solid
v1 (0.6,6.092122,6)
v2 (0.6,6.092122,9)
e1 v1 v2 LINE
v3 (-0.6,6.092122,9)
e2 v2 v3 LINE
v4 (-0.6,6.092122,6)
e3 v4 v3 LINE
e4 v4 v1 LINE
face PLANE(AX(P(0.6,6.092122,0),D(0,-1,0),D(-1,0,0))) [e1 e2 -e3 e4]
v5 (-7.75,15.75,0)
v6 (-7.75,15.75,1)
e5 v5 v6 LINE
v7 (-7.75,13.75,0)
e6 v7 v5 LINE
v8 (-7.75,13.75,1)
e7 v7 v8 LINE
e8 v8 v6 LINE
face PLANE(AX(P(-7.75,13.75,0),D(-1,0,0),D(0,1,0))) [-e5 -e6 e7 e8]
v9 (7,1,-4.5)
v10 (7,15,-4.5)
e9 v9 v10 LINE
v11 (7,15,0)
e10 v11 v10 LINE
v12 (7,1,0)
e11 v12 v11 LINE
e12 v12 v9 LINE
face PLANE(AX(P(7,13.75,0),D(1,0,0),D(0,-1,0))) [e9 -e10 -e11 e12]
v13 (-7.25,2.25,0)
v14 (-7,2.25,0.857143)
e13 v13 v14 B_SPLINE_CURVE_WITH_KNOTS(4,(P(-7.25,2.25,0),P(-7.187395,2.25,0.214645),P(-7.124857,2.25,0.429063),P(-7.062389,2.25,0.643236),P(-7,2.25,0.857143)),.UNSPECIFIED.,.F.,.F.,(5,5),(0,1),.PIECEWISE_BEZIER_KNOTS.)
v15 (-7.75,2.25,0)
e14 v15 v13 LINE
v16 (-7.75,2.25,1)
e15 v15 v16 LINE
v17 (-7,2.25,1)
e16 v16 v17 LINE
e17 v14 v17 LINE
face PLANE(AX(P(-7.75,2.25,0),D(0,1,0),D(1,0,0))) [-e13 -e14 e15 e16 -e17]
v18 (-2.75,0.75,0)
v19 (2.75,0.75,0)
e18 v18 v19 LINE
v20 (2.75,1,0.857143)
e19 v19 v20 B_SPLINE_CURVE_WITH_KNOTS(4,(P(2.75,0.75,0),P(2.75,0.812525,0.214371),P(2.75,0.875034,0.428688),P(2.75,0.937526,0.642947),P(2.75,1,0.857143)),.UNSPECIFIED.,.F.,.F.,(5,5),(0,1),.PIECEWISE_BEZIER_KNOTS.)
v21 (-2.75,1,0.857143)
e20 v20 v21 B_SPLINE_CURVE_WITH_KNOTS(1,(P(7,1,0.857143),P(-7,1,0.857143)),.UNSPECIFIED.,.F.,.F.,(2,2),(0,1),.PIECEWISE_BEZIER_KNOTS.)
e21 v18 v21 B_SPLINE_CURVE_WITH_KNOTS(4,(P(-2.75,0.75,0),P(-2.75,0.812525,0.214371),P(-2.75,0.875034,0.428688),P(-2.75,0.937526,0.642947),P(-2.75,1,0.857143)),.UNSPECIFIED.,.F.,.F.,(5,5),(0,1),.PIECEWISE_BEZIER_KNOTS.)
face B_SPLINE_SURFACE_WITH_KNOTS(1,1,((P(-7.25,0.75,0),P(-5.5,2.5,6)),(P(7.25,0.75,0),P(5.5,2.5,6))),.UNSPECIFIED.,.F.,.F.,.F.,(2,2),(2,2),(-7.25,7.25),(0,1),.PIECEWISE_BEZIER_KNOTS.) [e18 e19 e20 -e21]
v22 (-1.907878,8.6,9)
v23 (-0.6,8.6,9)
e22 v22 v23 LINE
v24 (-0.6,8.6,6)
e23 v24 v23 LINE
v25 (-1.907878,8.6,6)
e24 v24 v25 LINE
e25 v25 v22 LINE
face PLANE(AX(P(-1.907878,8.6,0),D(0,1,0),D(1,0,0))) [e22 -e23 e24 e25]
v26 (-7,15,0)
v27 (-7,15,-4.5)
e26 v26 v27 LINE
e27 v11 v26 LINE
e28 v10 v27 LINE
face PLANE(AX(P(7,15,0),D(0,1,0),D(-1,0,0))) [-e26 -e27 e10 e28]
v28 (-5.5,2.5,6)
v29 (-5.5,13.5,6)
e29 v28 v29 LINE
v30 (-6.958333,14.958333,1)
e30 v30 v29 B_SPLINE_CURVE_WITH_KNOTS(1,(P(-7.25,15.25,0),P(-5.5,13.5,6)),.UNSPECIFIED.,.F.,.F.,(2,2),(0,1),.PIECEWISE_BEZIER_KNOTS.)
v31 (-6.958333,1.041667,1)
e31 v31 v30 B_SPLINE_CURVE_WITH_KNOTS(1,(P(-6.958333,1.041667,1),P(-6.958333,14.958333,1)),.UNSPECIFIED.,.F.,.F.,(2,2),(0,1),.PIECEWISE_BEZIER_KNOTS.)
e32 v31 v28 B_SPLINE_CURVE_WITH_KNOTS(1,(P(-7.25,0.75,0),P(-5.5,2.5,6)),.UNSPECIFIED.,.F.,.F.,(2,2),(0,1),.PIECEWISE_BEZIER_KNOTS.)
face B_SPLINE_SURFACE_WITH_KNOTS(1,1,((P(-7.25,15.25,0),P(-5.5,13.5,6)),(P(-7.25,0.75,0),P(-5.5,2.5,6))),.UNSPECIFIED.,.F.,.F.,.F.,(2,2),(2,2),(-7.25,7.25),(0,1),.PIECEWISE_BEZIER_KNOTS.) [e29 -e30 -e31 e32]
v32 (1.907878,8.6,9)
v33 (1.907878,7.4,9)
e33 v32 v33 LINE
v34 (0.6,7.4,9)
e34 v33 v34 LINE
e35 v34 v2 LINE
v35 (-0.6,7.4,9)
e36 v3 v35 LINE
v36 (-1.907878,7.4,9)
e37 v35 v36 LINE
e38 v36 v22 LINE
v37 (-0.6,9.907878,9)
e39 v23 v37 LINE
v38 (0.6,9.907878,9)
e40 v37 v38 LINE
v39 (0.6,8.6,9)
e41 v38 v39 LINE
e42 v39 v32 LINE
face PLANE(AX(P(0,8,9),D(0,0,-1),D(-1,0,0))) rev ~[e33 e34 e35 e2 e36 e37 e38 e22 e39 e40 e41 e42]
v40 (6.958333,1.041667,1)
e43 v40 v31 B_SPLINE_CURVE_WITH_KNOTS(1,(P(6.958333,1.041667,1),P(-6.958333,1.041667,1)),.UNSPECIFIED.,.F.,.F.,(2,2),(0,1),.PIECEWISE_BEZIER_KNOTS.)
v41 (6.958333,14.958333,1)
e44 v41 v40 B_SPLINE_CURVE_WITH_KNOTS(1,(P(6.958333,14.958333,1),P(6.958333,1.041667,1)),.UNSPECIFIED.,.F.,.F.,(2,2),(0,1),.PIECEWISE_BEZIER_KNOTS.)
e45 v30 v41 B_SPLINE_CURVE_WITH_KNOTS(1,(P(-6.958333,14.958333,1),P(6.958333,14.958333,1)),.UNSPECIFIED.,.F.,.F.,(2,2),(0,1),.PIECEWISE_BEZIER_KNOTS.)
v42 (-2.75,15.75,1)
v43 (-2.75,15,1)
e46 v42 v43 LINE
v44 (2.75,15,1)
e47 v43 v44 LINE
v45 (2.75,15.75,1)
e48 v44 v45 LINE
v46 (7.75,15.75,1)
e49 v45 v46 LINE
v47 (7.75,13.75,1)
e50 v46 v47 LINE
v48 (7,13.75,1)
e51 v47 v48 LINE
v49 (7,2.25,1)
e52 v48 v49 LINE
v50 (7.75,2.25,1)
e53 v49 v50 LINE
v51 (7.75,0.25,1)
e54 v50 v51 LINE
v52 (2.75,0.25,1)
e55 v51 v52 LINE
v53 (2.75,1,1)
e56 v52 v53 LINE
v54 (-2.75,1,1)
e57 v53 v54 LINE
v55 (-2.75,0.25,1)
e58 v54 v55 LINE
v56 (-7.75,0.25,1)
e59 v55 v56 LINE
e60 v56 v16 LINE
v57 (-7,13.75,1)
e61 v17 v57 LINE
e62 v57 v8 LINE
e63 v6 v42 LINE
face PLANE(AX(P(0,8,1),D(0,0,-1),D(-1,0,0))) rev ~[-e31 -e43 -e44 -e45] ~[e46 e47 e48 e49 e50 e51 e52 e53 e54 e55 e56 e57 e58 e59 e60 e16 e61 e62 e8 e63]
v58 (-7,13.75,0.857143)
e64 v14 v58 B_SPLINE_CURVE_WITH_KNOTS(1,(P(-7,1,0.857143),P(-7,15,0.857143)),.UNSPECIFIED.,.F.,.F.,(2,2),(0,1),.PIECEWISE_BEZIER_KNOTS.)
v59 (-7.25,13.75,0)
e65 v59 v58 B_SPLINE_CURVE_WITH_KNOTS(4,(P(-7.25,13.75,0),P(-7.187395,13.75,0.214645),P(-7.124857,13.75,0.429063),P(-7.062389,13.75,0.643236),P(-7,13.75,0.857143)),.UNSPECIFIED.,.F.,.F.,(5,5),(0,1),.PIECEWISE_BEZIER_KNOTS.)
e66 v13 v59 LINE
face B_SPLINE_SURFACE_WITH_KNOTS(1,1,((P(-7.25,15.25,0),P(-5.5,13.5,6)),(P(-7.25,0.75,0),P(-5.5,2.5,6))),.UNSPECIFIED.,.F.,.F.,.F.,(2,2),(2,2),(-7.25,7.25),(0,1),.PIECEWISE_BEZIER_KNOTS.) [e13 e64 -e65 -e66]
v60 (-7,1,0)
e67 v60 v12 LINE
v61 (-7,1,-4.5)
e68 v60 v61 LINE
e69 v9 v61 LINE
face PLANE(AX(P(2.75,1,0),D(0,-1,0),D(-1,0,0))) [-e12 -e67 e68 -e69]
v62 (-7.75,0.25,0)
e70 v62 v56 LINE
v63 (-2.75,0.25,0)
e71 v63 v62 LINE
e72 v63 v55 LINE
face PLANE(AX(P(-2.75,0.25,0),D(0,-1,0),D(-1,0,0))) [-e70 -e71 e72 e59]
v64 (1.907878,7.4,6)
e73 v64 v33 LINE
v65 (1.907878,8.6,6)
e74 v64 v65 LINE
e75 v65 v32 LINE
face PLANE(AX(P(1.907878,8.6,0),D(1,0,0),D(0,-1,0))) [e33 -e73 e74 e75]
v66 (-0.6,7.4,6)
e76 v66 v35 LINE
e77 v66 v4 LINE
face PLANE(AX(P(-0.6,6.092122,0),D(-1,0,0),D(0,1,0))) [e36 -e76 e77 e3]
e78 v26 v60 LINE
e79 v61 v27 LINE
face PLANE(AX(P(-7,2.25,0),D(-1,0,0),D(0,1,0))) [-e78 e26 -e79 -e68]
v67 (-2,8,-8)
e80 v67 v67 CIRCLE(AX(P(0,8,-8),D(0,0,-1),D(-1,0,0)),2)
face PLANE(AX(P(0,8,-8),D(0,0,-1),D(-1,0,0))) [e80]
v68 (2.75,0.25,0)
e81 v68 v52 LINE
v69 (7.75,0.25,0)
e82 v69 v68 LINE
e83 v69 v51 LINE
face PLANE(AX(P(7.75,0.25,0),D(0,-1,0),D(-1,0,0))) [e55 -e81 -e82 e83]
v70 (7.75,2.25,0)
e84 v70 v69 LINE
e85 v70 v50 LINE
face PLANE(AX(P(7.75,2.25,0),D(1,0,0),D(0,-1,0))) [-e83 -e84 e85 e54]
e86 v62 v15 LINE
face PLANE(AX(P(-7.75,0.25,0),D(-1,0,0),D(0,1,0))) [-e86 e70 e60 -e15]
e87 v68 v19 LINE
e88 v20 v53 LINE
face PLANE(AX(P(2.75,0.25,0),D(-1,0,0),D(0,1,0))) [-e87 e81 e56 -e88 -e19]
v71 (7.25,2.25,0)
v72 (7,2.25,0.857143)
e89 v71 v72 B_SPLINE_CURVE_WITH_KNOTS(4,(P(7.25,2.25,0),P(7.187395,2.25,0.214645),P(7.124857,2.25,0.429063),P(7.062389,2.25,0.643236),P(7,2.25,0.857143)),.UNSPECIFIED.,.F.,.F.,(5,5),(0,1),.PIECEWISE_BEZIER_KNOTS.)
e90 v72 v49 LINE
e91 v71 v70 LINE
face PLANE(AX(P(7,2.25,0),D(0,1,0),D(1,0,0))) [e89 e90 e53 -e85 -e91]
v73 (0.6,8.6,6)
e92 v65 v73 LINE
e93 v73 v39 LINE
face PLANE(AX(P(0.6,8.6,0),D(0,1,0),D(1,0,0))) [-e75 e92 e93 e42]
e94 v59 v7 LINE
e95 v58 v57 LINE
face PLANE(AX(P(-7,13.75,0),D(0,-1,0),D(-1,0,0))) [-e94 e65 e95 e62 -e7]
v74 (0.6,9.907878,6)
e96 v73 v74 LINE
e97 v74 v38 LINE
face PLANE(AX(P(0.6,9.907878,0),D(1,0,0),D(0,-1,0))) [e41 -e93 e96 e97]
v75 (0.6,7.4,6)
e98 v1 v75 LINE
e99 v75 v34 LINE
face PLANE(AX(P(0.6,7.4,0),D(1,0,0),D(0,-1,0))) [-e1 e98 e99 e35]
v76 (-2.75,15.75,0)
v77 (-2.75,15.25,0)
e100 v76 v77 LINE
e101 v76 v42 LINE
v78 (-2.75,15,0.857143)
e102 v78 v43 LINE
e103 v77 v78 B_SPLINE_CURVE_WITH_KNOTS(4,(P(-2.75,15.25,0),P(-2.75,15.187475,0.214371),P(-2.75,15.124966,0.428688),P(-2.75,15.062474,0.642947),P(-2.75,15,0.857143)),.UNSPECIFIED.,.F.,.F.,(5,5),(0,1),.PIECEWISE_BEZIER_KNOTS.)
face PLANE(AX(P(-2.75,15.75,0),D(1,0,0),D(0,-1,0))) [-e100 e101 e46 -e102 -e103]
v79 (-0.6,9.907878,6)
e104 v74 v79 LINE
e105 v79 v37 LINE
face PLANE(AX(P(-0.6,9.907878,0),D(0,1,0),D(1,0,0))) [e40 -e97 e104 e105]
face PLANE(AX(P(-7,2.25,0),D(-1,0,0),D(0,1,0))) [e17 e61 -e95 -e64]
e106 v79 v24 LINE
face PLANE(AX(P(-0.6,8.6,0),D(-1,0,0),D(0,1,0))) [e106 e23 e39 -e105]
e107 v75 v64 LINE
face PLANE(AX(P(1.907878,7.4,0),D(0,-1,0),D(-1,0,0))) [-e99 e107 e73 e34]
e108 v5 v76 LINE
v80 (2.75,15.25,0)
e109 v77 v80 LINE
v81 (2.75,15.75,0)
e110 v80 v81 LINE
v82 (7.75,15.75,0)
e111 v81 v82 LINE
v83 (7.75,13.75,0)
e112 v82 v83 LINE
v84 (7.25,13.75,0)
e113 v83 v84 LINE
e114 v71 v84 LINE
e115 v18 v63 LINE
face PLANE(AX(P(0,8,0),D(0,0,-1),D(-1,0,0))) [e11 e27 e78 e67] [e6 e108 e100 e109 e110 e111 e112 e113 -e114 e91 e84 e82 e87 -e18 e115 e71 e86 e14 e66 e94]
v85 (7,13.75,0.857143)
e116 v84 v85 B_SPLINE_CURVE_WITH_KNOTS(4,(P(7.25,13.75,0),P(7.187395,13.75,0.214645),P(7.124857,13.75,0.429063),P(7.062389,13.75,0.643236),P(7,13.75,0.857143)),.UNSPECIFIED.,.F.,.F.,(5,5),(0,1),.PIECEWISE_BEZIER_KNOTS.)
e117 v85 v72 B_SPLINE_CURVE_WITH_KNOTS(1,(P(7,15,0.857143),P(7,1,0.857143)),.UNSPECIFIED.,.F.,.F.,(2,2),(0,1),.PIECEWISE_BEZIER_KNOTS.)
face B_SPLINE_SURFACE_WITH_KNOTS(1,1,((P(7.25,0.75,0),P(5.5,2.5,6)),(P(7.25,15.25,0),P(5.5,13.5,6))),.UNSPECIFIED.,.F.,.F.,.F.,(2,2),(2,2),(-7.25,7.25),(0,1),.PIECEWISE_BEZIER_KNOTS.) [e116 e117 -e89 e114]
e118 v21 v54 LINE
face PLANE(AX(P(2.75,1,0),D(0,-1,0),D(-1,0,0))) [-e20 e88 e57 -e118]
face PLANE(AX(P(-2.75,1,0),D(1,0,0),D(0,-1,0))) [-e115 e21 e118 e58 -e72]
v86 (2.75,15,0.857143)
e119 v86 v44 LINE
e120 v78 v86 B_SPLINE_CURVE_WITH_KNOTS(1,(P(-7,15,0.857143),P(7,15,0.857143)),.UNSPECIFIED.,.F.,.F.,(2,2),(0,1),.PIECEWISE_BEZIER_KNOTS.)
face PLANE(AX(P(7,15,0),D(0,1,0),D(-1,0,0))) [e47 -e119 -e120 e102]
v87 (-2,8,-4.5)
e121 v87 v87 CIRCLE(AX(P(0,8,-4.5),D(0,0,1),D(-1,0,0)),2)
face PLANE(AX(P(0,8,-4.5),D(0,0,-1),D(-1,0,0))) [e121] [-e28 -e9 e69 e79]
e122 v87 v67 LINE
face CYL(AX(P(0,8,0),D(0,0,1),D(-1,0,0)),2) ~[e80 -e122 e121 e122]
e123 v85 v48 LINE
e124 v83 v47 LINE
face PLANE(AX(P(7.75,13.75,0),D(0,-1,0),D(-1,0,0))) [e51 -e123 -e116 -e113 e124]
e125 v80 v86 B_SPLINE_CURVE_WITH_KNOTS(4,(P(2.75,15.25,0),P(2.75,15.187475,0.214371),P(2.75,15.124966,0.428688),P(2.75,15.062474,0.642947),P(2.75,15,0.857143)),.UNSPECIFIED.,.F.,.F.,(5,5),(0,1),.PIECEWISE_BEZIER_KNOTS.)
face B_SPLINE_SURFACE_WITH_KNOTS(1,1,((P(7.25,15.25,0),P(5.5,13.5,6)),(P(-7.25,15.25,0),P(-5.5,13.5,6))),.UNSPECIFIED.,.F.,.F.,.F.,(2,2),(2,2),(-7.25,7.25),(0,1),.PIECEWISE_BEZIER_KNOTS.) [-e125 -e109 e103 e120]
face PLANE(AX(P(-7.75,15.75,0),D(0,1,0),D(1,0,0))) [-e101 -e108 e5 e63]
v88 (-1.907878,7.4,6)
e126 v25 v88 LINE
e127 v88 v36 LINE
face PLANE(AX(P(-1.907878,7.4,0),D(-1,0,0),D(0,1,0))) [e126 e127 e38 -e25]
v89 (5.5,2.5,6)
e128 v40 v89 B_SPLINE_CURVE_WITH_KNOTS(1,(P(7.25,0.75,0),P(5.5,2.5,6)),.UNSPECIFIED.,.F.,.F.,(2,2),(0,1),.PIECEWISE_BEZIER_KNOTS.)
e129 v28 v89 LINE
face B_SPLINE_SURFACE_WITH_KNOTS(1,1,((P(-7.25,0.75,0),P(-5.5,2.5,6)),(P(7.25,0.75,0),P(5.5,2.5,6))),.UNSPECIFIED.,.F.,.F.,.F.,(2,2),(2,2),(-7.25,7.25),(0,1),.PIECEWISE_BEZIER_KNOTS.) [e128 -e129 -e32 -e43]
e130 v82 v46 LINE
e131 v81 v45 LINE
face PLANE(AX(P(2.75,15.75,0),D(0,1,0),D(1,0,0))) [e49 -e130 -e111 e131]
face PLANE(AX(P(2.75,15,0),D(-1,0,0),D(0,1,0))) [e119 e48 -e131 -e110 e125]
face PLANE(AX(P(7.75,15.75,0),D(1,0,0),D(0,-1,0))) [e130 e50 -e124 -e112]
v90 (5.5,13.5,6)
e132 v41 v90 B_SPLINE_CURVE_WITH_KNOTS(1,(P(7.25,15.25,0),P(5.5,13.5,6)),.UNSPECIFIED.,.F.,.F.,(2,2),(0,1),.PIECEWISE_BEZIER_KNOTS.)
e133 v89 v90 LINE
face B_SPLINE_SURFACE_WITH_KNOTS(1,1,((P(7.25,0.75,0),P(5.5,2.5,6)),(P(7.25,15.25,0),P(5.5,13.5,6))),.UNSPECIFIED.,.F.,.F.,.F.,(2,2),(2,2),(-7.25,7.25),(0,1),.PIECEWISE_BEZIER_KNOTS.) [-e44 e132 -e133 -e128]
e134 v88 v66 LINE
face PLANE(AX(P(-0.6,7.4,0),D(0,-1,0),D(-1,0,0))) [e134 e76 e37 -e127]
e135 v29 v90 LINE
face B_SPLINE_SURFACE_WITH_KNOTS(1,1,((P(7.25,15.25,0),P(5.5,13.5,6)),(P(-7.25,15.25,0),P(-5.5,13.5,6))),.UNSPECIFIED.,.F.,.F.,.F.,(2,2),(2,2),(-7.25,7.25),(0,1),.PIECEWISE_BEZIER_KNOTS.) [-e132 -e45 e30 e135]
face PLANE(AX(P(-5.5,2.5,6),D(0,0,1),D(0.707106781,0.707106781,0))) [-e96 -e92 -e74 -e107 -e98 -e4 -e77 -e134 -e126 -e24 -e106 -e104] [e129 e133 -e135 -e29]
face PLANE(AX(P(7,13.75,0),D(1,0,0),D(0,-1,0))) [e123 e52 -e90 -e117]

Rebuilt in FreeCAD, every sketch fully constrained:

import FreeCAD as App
import Part
import Sketcher
Q = App.Units.Quantity


def add_polygon(sketch, points):
    """Adds a closed chain of lines whose ends are joined by coincident constraints."""
    first, n = sketch.GeometryCount, len(points)
    for a, b in zip(points, points[1:] + points[:1]):
        sketch.addGeometry(Part.LineSegment(App.Vector(*a, 0), App.Vector(*b, 0)), False)
    for i in range(n):
        sketch.addConstraint(Sketcher.Constraint("Coincident", first + i, 2, first + (i + 1) % n, 1))

doc = App.newDocument("Part")
body = doc.addObject("PartDesign::Body", "Body")

# Sketch on XY plane
sketch1 = body.newObject("Sketcher::SketchObject", "Sketch")
sketch1.AttachmentSupport = (doc.getObject("XY_Plane"), [""])
sketch1.MapMode = "FlatFace"
add_polygon(sketch1, [(7, 7), (7, -7), (-7, -7), (-7, 7)])  # lines 0-3
sketch1.addConstraint([
    Sketcher.Constraint("Vertical", 0),
    Sketcher.Constraint("Horizontal", 1),
    Sketcher.Constraint("Vertical", 2),
    Sketcher.Constraint("Horizontal", 3),
    Sketcher.Constraint("Symmetric", 0, 2, 2, 2, -1, 1),
    Sketcher.Constraint("Equal", 3, 0),
    Sketcher.Constraint("DistanceX", 1, 2, 1, 1, Q("14 mm")),
])
pad1 = body.newObject("PartDesign::Pad", "Pad")
pad1.Profile = sketch1
pad1.Length = 4.5
pad1.Reversed = True

# Sketch on XY plane
sketch2 = body.newObject("Sketcher::SketchObject", "Sketch001")
sketch2.AttachmentSupport = (doc.getObject("XY_Plane"), [""])
sketch2.MapMode = "FlatFace"
sketch2.addGeometry(Part.Circle(App.Vector(0, 0, 0), App.Vector(0, 0, 1), 2), False)
sketch2.addConstraint([
    Sketcher.Constraint("Coincident", 0, 3, -1, 1),
    Sketcher.Constraint("Diameter", 0, Q("4 mm")),
])
pad2 = body.newObject("PartDesign::Pad", "Pad001")
pad2.Profile = sketch2
pad2.Length = 8
pad2.Reversed = True

# Sketch on XY plane
sketch3 = body.newObject("Sketcher::SketchObject", "Sketch002")
sketch3.AttachmentSupport = (doc.getObject("XY_Plane"), [""])
sketch3.MapMode = "FlatFace"
add_polygon(sketch3, [(-7.8, 7.8), (-7.8, 5.8), (-7, 5.8), (-7, -5.8), (-7.8, -5.8), (-7.8, -7.8), (-2.8, -7.8), (-2.8, -7), (2.8, -7), (2.8, -7.8), (7.8, -7.8), (7.8, -5.8), (7, -5.8), (7, 5.8), (7.8, 5.8), (7.8, 7.8), (2.8, 7.8), (2.8, 7), (-2.8, 7), (-2.8, 7.8)])  # lines 0-19
sketch3.addConstraint([
    Sketcher.Constraint("Vertical", 0),
    Sketcher.Constraint("Horizontal", 1),
    Sketcher.Constraint("Vertical", 2),
    Sketcher.Constraint("Horizontal", 3),
    Sketcher.Constraint("Vertical", 4),
    Sketcher.Constraint("Horizontal", 5),
    Sketcher.Constraint("Vertical", 6),
    Sketcher.Constraint("Horizontal", 7),
    Sketcher.Constraint("Vertical", 8),
    Sketcher.Constraint("Horizontal", 9),
    Sketcher.Constraint("Vertical", 10),
    Sketcher.Constraint("Horizontal", 11),
    Sketcher.Constraint("Vertical", 12),
    Sketcher.Constraint("Horizontal", 13),
    Sketcher.Constraint("Vertical", 14),
    Sketcher.Constraint("Horizontal", 15),
    Sketcher.Constraint("Vertical", 16),
    Sketcher.Constraint("Horizontal", 17),
    Sketcher.Constraint("Vertical", 18),
    Sketcher.Constraint("Horizontal", 19),
    Sketcher.Constraint("Symmetric", 0, 2, 10, 2, -1, 1),
    Sketcher.Constraint("Symmetric", 2, 2, 12, 2, -1, 1),
    Sketcher.Constraint("Symmetric", 4, 2, 14, 2, -1, 1),
    Sketcher.Constraint("Symmetric", 6, 2, 16, 2, -1, 1),
    Sketcher.Constraint("Symmetric", 8, 2, 18, 2, -1, 1),
    Sketcher.Constraint("Symmetric", 5, 2, 8, 2, -2),
    Sketcher.Constraint("Symmetric", 3, 2, 10, 2, -2),
    Sketcher.Constraint("Equal", 13, 6),
    Sketcher.Constraint("DistanceX", 5, 1, 5, 2, Q("5 mm")),
    Sketcher.Constraint("DistanceY", 0, 2, 0, 1, Q("2 mm")),
    Sketcher.Constraint("DistanceX", 7, 1, 7, 2, Q("5.5 mm")),
    Sketcher.Constraint("DistanceY", 2, 2, 2, 1, Q("11.5 mm")),
    Sketcher.Constraint("DistanceX", 1, 2, -1, 1, Q("7 mm")),
])
pad3 = body.newObject("PartDesign::Pad", "Pad002")
pad3.Profile = sketch3
pad3.Length = 1

# Sketch on XY plane
sketch4 = body.newObject("Sketcher::SketchObject", "Sketch003")
sketch4.AttachmentSupport = (doc.getObject("XY_Plane"), [""])
sketch4.MapMode = "FlatFace"
add_polygon(sketch4, [(-7, 7), (-7, -7), (7, -7), (7, 7)])  # lines 0-3
sketch4.addConstraint([
    Sketcher.Constraint("Vertical", 0),
    Sketcher.Constraint("Horizontal", 1),
    Sketcher.Constraint("Vertical", 2),
    Sketcher.Constraint("Horizontal", 3),
    Sketcher.Constraint("Symmetric", 0, 2, 2, 2, -1, 1),
    Sketcher.Constraint("Equal", 3, 0),
    Sketcher.Constraint("DistanceX", 1, 1, 1, 2, Q("14.5 mm")),
])

# Sketch on XY plane
sketch5 = body.newObject("Sketcher::SketchObject", "Sketch004")
sketch5.AttachmentSupport = (doc.getObject("XY_Plane"), [""])
sketch5.MapMode = "FlatFace"
sketch5.AttachmentOffset = App.Placement(App.Vector(0, 0, 6), App.Rotation())
add_polygon(sketch5, [(-6, 6), (-6, -6), (6, -6), (6, 6)])  # lines 0-3
sketch5.addConstraint([
    Sketcher.Constraint("Vertical", 0),
    Sketcher.Constraint("Horizontal", 1),
    Sketcher.Constraint("Vertical", 2),
    Sketcher.Constraint("Horizontal", 3),
    Sketcher.Constraint("Symmetric", 0, 2, 2, 2, -1, 1),
    Sketcher.Constraint("Equal", 3, 0),
    Sketcher.Constraint("DistanceX", 1, 1, 1, 2, Q("11 mm")),
])

additiveloft = body.newObject("PartDesign::AdditiveLoft", "AdditiveLoft")
additiveloft.Profile = sketch4
additiveloft.Sections = [sketch5]

# Sketch on XY plane
sketch6 = body.newObject("Sketcher::SketchObject", "Sketch005")
sketch6.AttachmentSupport = (doc.getObject("XY_Plane"), [""])
sketch6.MapMode = "FlatFace"
add_polygon(sketch6, [(0.6, 1.9), (-0.6, 1.9), (-0.6, 0.6), (-1.9, 0.6), (-1.9, -0.6), (-0.6, -0.6), (-0.6, -1.9), (0.6, -1.9), (0.6, -0.6), (1.9, -0.6), (1.9, 0.6), (0.6, 0.6)])  # lines 0-11
sketch6.addConstraint([
    Sketcher.Constraint("Horizontal", 0),
    Sketcher.Constraint("Vertical", 1),
    Sketcher.Constraint("Horizontal", 2),
    Sketcher.Constraint("Vertical", 3),
    Sketcher.Constraint("Horizontal", 4),
    Sketcher.Constraint("Vertical", 5),
    Sketcher.Constraint("Horizontal", 6),
    Sketcher.Constraint("Vertical", 7),
    Sketcher.Constraint("Horizontal", 8),
    Sketcher.Constraint("Vertical", 9),
    Sketcher.Constraint("Horizontal", 10),
    Sketcher.Constraint("Vertical", 11),
    Sketcher.Constraint("Symmetric", 0, 2, 6, 2, -1, 1),
    Sketcher.Constraint("Symmetric", 2, 2, 8, 2, -1, 1),
    Sketcher.Constraint("Symmetric", 4, 2, 10, 2, -1, 1),
    Sketcher.Constraint("Symmetric", 4, 2, 7, 2, -2),
    Sketcher.Constraint("Equal", 10, 1),
    Sketcher.Constraint("Equal", 6, 3),
    Sketcher.Constraint("DistanceX", 0, 2, 0, 1, Q("1.2 mm")),
    Sketcher.Constraint("DistanceX", 2, 2, 2, 1, Q("1.307878 mm")),
])
pad4 = body.newObject("PartDesign::Pad", "Pad003")
pad4.Profile = sketch6
pad4.Length = 9

# Sketch on XY plane
sketch7 = body.newObject("Sketcher::SketchObject", "Sketch006")
sketch7.AttachmentSupport = (doc.getObject("XY_Plane"), [""])
sketch7.MapMode = "FlatFace"
sketch7.AttachmentOffset = App.Placement(App.Vector(0, 0, 5), App.Rotation())
add_polygon(sketch7, [(-4, 3), (-4, -3), (4, -3), (4, 3)])  # lines 0-3
sketch7.addConstraint([
    Sketcher.Constraint("Vertical", 0),
    Sketcher.Constraint("Horizontal", 1),
    Sketcher.Constraint("Vertical", 2),
    Sketcher.Constraint("Horizontal", 3),
    Sketcher.Constraint("Symmetric", 0, 2, 2, 2, -1, 1),
    Sketcher.Constraint("DistanceY", 0, 2, 0, 1, Q("6 mm")),
    Sketcher.Constraint("DistanceX", 1, 1, 1, 2, Q("7.5 mm")),
])
pad5 = body.newObject("PartDesign::Pad", "Pad004")
pad5.Profile = sketch7
pad5.Length = 1
body2 = doc.addObject("PartDesign::Body", "Body001")
doc.recompute()

body.Placement = App.Placement(App.Vector(0, 8, 0), App.Rotation(App.Vector(0, 0, 1), 0))
boolean = body2.newObject("PartDesign::Boolean", "Boolean")
boolean.Type = "Fuse"
boolean.addObjects([body])

doc.recompute()
